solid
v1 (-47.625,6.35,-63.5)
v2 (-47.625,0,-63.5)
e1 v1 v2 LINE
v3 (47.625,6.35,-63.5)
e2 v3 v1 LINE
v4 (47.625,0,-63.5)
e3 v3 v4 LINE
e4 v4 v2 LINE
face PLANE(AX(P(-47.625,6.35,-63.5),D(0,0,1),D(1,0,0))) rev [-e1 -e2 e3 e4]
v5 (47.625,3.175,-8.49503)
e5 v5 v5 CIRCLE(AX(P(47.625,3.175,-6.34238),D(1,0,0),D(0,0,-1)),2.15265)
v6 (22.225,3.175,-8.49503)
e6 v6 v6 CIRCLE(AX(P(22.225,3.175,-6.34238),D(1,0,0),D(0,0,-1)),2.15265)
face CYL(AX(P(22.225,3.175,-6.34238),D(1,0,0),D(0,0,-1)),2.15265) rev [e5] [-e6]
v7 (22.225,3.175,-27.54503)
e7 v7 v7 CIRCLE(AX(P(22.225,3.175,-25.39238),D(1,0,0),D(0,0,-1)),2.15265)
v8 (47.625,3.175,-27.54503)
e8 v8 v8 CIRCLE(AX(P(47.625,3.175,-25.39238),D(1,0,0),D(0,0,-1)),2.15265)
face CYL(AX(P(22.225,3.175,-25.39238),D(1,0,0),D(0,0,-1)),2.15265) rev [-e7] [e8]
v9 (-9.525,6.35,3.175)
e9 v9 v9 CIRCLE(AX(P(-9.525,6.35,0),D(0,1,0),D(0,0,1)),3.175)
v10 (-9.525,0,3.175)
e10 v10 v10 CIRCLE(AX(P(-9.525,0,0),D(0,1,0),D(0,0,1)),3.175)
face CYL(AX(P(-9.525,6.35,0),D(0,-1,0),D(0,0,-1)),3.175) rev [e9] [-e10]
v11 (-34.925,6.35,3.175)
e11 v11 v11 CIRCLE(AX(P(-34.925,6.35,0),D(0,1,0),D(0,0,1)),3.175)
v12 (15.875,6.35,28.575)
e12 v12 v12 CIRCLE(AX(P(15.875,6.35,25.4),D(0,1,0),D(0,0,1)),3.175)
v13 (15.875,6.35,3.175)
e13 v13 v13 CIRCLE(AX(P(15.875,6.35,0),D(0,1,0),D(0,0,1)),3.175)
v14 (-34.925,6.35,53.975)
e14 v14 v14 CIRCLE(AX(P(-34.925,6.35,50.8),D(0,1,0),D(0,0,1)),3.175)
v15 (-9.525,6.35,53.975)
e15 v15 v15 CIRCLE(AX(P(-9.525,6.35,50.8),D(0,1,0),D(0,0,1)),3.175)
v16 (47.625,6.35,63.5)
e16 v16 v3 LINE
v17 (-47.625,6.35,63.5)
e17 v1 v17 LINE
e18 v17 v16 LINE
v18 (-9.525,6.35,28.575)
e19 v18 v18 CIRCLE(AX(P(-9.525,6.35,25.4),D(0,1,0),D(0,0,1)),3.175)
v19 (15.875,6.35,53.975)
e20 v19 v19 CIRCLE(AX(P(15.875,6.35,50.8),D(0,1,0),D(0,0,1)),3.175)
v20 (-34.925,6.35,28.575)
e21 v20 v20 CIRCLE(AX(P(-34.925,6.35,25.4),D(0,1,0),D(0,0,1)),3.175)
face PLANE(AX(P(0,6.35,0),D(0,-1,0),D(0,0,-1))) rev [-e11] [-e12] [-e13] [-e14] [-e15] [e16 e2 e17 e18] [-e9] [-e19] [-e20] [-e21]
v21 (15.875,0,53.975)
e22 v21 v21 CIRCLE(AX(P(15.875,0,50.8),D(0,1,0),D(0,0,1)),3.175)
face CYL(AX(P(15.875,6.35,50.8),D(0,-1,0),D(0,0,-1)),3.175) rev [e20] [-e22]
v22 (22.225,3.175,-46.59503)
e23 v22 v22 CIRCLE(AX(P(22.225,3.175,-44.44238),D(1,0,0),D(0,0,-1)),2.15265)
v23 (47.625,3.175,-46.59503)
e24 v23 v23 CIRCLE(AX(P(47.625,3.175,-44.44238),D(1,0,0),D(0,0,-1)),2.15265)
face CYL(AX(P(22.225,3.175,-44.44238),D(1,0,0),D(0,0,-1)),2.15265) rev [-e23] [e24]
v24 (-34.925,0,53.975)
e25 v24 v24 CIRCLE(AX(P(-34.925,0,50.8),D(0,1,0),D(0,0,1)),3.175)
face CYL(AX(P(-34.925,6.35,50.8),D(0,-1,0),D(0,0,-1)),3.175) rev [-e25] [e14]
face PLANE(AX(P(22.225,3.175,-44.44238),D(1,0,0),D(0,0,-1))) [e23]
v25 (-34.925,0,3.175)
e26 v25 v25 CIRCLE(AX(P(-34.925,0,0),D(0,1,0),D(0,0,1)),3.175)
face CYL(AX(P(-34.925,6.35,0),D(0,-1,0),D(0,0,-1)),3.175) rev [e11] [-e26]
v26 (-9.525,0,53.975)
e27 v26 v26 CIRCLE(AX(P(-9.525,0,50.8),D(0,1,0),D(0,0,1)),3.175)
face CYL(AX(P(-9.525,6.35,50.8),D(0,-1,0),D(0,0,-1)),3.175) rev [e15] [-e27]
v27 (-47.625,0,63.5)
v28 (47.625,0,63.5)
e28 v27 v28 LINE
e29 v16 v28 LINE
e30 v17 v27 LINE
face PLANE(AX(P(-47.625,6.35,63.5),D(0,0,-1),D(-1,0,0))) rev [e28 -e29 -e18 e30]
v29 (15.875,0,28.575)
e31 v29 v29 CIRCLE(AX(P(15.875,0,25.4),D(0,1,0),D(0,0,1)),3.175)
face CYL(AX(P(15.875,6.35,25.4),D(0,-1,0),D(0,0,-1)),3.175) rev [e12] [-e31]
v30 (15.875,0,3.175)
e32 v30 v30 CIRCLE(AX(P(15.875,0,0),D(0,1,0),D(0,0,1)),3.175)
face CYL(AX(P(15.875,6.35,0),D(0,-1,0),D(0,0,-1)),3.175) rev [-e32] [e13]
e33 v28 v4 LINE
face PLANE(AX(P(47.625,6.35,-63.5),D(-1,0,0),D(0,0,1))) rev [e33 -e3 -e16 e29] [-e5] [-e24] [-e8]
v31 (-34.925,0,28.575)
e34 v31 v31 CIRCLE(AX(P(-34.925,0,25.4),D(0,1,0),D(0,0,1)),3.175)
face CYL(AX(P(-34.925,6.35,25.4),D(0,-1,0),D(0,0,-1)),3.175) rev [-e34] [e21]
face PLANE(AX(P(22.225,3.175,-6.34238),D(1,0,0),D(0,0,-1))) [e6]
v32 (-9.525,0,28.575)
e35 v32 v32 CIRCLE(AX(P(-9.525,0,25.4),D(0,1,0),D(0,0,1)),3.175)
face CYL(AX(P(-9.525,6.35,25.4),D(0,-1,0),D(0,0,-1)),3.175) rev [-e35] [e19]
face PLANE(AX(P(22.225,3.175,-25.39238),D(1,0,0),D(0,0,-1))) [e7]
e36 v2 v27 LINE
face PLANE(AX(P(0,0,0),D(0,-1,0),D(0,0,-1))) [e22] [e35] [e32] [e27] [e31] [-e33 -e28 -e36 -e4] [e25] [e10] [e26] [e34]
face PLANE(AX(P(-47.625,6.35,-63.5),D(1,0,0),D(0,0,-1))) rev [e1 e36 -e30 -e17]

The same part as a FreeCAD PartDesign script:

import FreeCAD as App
import Part
import Sketcher
Q = App.Units.Quantity

doc = App.newDocument("Part")
params = doc.addObject("Spreadsheet::Sheet", "Params")
for row, (alias, value) in enumerate([
    ("sketch1_diameter", "0.25 in"),
    ("sketch1_height", "5 in"),
    ("sketch1_width", "3.75 in"),
    ("pad1_length", "0.25 in"),
    ("pocket1_length", "1 in"),
], start=1):
    params.set(f"A{row}", alias)
    params.set(f"B{row}", "=" + value)
    params.setAlias(f"B{row}", alias)

body = doc.addObject("PartDesign::Body", "Body")

# Sketch on XZ plane
sketch1 = doc.addObject("Sketcher::SketchObject", "Sketch")
body.addObject(sketch1)
sketch1.AttachmentSupport = (doc.XZ_Plane, [""])
sketch1.MapMode = "FlatFace"
sketch1.addGeometry([
    Part.LineSegment(App.Vector(-47.6, -63.5, 0), App.Vector(-47.6, 63.5, 0)),  # 0
    Part.LineSegment(App.Vector(-47.6, 63.5, 0), App.Vector(47.6, 63.5, 0)),  # 1
    Part.LineSegment(App.Vector(47.6, 63.5, 0), App.Vector(47.6, -63.5, 0)),  # 2
    Part.LineSegment(App.Vector(47.6, -63.5, 0), App.Vector(-47.6, -63.5, 0)),  # 3
    Part.Circle(App.Vector(-34.9, 50.8, 0), App.Vector(0, 0, 1), 3.2),  # 4
    Part.Circle(App.Vector(-9.5, 50.8, 0), App.Vector(0, 0, 1), 3.2),  # 5
    Part.Circle(App.Vector(-34.9, 25.4, 0), App.Vector(0, 0, 1), 3.2),  # 6
    Part.Circle(App.Vector(-9.5, 25.4, 0), App.Vector(0, 0, 1), 3.2),  # 7
    Part.Circle(App.Vector(15.9, 50.8, 0), App.Vector(0, 0, 1), 3.2),  # 8
    Part.Circle(App.Vector(15.9, 25.4, 0), App.Vector(0, 0, 1), 3.2),  # 9
    Part.Circle(App.Vector(-34.9, 0, 0), App.Vector(0, 0, 1), 3.2),  # 10
    Part.Circle(App.Vector(-9.5, 0, 0), App.Vector(0, 0, 1), 3.2),  # 11
    Part.Circle(App.Vector(15.9, 0, 0), App.Vector(0, 0, 1), 3.2),  # 12
], False)
sketch1.addConstraint([
    Sketcher.Constraint("Coincident", 0, 2, 1, 1),
    Sketcher.Constraint("Coincident", 1, 2, 2, 1),
    Sketcher.Constraint("Coincident", 2, 2, 3, 1),
    Sketcher.Constraint("Coincident", 3, 2, 0, 1),
    Sketcher.Constraint("Vertical", 0),
    Sketcher.Constraint("Horizontal", 1),
    Sketcher.Constraint("Vertical", 2),
    Sketcher.Constraint("Horizontal", 3),
    Sketcher.Constraint("Equal", 4, 5),
    Sketcher.Constraint("Equal", 5, 6),
    Sketcher.Constraint("Equal", 6, 7),
    Sketcher.Constraint("Equal", 7, 8),
    Sketcher.Constraint("Equal", 8, 9),
    Sketcher.Constraint("Equal", 9, 10),
    Sketcher.Constraint("Equal", 10, 11),
    Sketcher.Constraint("Equal", 11, 12),
    Sketcher.Constraint("Symmetric", 0, 2, 2, 2, -1, 1),
    Sketcher.Constraint("PointOnObject", 10, 3, -1),
    Sketcher.Constraint("PointOnObject", 11, 3, -1),
    Sketcher.Constraint("PointOnObject", 12, 3, -1),
    Sketcher.Constraint("Horizontal", 4, 3, 5, 3),
    Sketcher.Constraint("Horizontal", 6, 3, 7, 3),
    Sketcher.Constraint("Horizontal", 5, 3, 8, 3),
    Sketcher.Constraint("Horizontal", 7, 3, 9, 3),
    Sketcher.Constraint("Vertical", 4, 3, 6, 3),
    Sketcher.Constraint("Vertical", 5, 3, 7, 3),
    Sketcher.Constraint("Vertical", 8, 3, 9, 3),
    Sketcher.Constraint("Vertical", 6, 3, 10, 3),
    Sketcher.Constraint("Vertical", 7, 3, 11, 3),
    Sketcher.Constraint("Vertical", 9, 3, 12, 3),
    Sketcher.Constraint("Diameter", 4, Q("0.25 in")),
    Sketcher.Constraint("DistanceY", 0, 1, 0, 2, Q("5 in")),
    Sketcher.Constraint("DistanceY", -1, 1, 4, 3, Q("2 in")),
    Sketcher.Constraint("DistanceY", -1, 1, 6, 3, Q("1 in")),
    Sketcher.Constraint("DistanceX", 4, 3, 5, 3, Q("1 in")),
    Sketcher.Constraint("DistanceX", 5, 3, 8, 3, Q("1 in")),
    Sketcher.Constraint("DistanceX", 1, 1, 1, 2, Q("3.75 in")),
    Sketcher.Constraint("DistanceX", 0, 2, 4, 3, Q("0.5 in")),
])
sketch1.setExpression("Constraints[30]", "Params.sketch1_diameter")
sketch1.setExpression("Constraints[31]", "Params.sketch1_height")
sketch1.setExpression("Constraints[36]", "Params.sketch1_width")
pad1 = doc.addObject("PartDesign::Pad", "Pad")
body.addObject(pad1)
pad1.Profile = sketch1
pad1.setExpression("Length", "Params.pad1_length")
pad1.Reversed = True

# Sketch on YZ plane
sketch2 = doc.addObject("Sketcher::SketchObject", "Sketch001")
body.addObject(sketch2)
sketch2.AttachmentSupport = (doc.YZ_Plane, [""])
sketch2.MapMode = "FlatFace"
sketch2.AttachmentOffset = App.Placement(App.Vector(0, 0, 1.875 * 25.4), App.Rotation())
sketch2.addGeometry([
    Part.Circle(App.Vector(3.2, -44.4, 0), App.Vector(0, 0, 1), 2.2),
    Part.Circle(App.Vector(3.2, -25.4, 0), App.Vector(0, 0, 1), 2.2),
    Part.Circle(App.Vector(3.2, -6.3, 0), App.Vector(0, 0, 1), 2.2),
], False)
sketch2.addConstraint([
    Sketcher.Constraint("Equal", 0, 1),
    Sketcher.Constraint("Equal", 1, 2),
    Sketcher.Constraint("Vertical", 0, 3, 1, 3),
    Sketcher.Constraint("Vertical", 1, 3, 2, 3),
    Sketcher.Constraint("Diameter", 0, Q("0.1695 in")),
    Sketcher.Constraint("DistanceY", 0, 3, 2, 3, Q("1.5 in")),
    Sketcher.Constraint("DistanceY", 0, 3, 1, 3, Q("0.75 in")),
    Sketcher.Constraint("DistanceX", -1, 1, 0, 3, Q("0.125 in")),
    Sketcher.Constraint("DistanceY", 0, 3, -1, 1, Q("1.7497 in")),
])
pocket1 = doc.addObject("PartDesign::Pocket", "Pocket")
body.addObject(pocket1)
pocket1.Profile = sketch2
pocket1.setExpression("Length", "Params.pocket1_length")

doc.recompute()
